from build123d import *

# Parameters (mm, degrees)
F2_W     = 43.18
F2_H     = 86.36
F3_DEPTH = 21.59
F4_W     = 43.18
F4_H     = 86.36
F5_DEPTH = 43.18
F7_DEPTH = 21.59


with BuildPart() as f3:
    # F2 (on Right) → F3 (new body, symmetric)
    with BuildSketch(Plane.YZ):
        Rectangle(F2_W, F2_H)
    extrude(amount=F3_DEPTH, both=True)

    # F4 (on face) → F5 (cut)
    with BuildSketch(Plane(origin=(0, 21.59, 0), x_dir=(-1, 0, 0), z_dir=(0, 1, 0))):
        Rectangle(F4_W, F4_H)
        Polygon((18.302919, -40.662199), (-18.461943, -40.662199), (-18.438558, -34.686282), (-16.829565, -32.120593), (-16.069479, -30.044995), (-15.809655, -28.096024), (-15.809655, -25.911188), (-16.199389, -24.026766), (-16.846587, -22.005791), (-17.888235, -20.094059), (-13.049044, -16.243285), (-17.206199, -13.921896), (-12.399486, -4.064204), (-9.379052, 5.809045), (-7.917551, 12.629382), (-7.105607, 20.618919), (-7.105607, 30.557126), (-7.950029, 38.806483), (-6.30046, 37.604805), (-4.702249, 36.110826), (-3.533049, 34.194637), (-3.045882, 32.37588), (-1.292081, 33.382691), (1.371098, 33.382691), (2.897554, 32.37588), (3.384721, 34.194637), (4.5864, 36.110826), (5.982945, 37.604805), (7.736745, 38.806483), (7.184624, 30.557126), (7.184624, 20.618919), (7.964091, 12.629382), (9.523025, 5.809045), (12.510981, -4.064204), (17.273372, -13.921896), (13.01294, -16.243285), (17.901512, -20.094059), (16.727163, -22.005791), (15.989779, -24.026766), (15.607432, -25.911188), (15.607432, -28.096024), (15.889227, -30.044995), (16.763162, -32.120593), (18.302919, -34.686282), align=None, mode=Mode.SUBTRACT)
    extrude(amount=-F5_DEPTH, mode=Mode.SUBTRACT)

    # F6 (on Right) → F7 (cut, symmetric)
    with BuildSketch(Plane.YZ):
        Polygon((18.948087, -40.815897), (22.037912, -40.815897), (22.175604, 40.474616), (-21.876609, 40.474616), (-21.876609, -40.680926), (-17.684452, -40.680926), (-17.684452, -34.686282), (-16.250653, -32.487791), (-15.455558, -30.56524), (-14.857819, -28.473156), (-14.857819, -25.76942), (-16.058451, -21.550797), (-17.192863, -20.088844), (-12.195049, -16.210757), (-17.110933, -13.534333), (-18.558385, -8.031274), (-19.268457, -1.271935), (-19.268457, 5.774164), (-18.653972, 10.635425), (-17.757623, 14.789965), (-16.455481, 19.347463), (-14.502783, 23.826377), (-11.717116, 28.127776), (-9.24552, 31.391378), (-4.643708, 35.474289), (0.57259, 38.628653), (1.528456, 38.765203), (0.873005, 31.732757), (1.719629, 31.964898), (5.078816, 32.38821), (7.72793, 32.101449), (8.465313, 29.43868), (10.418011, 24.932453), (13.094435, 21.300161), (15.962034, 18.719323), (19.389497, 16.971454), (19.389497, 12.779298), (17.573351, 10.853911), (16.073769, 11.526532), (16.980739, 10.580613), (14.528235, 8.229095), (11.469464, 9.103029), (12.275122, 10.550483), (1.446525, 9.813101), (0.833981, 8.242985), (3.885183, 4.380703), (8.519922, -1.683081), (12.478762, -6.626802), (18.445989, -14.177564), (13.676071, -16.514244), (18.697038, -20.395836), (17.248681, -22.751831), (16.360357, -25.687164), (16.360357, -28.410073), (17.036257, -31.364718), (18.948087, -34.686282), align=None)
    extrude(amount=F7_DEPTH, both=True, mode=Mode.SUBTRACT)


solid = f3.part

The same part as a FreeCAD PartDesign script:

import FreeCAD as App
import Part
import Sketcher
Q = App.Units.Quantity


def add_polygon(sketch, points):
    """Adds a closed chain of lines whose ends are joined by coincident constraints."""
    first, n = sketch.GeometryCount, len(points)
    for a, b in zip(points, points[1:] + points[:1]):
        sketch.addGeometry(Part.LineSegment(App.Vector(*a, 0), App.Vector(*b, 0)), False)
    for i in range(n):
        sketch.addConstraint(Sketcher.Constraint("Coincident", first + i, 2, first + (i + 1) % n, 1))

doc = App.newDocument("Part")
params = doc.addObject("Spreadsheet::Sheet", "Params")
for row, (alias, value) in enumerate([
    ("sketch1_width", "1.7 in"),
    ("sketch1_height", "3.4 in"),
    ("pad1_length", "1.7 in"),
    ("sketch2_width", "1.7 in"),
    ("sketch2_height", "3.4 in"),
    ("pocket1_length", "1.7 in"),
    ("pocket2_length", "1.7 in"),
], start=1):
    params.set(f"A{row}", alias)
    params.set(f"B{row}", "=" + value)
    params.setAlias(f"B{row}", alias)

body = doc.addObject("PartDesign::Body", "Body")

# Sketch on YZ plane
sketch1 = body.newObject("Sketcher::SketchObject", "Sketch")
sketch1.AttachmentSupport = (doc.getObject("YZ_Plane"), [""])
sketch1.MapMode = "FlatFace"
add_polygon(sketch1, [(-22, 43), (-22, -43), (22, -43), (22, 43)])  # lines 0-3
sketch1.addConstraint([
    Sketcher.Constraint("Vertical", 0),
    Sketcher.Constraint("Horizontal", 1),
    Sketcher.Constraint("Vertical", 2),
    Sketcher.Constraint("Horizontal", 3),
    Sketcher.Constraint("Symmetric", 0, 2, 2, 2, -1, 1),
    Sketcher.Constraint("DistanceX", 1, 1, 1, 2, Q("1.7 in")),
    Sketcher.Constraint("DistanceY", 0, 2, 0, 1, Q("3.4 in")),
])
sketch1.setExpression("Constraints[9]", "Params.sketch1_width")
sketch1.setExpression("Constraints[10]", "Params.sketch1_height")
pad1 = body.newObject("PartDesign::Pad", "Pad")
pad1.Profile = sketch1
pad1.setExpression("Length", "Params.pad1_length")
pad1.Midplane = True

# Sketch on XZ plane
sketch2 = body.newObject("Sketcher::SketchObject", "Sketch001")
sketch2.AttachmentSupport = (doc.getObject("XZ_Plane"), [""])
sketch2.MapMode = "FlatFace"
sketch2.AttachmentOffset = App.Placement(App.Vector(0, 0, -0.85 * 25.4), App.Rotation())
add_polygon(sketch2, [(21.6, 43.2), (21.6, -43.2), (-21.6, -43.2), (-21.6, 43.2)])  # lines 0-3
add_polygon(sketch2, [(-18.3, -34.7), (-18.3, -40.7), (18.5, -40.7), (18.4, -34.7), (16.8, -32.1), (16.1, -30), (15.8, -28.1), (15.8, -25.9), (16.2, -24), (16.8, -22), (17.9, -20.1), (13, -16.2), (17.2, -13.9), (12.4, -4.1), (9.4, 5.8), (7.9, 12.6), (7.1, 20.6), (7.1, 30.6), (8, 38.8), (6.3, 37.6), (4.7, 36.1), (3.5, 34.2), (3, 32.4), (1.3, 33.4), (-1.4, 33.4), (-2.9, 32.4), (-3.4, 34.2), (-4.6, 36.1), (-6, 37.6), (-7.7, 38.8), (-7.2, 30.6), (-7.2, 20.6), (-8, 12.6), (-9.5, 5.8), (-12.5, -4.1), (-17.3, -13.9), (-13, -16.2), (-17.9, -20.1), (-16.7, -22), (-16, -24), (-15.6, -25.9), (-15.6, -28.1), (-15.9, -30), (-16.8, -32.1)])  # lines 4-47
sketch2.addConstraint([
    Sketcher.Constraint("Vertical", 0),
    Sketcher.Constraint("Horizontal", 1),
    Sketcher.Constraint("Vertical", 2),
    Sketcher.Constraint("Horizontal", 3),
    Sketcher.Constraint("Vertical", 4),
    Sketcher.Constraint("Horizontal", 5),
    Sketcher.Constraint("Vertical", 10),
    Sketcher.Constraint("Vertical", 20),
    Sketcher.Constraint("Horizontal", 27),
    Sketcher.Constraint("Vertical", 34),
    Sketcher.Constraint("Vertical", 44),
    Sketcher.Constraint("Symmetric", 0, 2, 2, 2, -1, 1),
    Sketcher.Constraint("Parallel", 7, 30),
    Sketcher.Constraint("Perpendicular", 23, 31),
    Sketcher.Constraint("Perpendicular", 13, 39),
    Sketcher.Constraint("Horizontal", 25, 2, 28, 2),
    Sketcher.Constraint("Horizontal", 24, 2, 29, 2),
    Sketcher.Constraint("Horizontal", 23, 2, 30, 2),
    Sketcher.Constraint("Horizontal", 22, 2, 31, 2),
    Sketcher.Constraint("Horizontal", 21, 2, 32, 2),
    Sketcher.Constraint("Horizontal", 20, 2, 33, 2),
    Sketcher.Constraint("Horizontal", 19, 2, 34, 2),
    Sketcher.Constraint("Horizontal", 18, 2, 35, 2),
    Sketcher.Constraint("Horizontal", 17, 2, 36, 2),
    Sketcher.Constraint("Horizontal", 16, 2, 37, 2),
    Sketcher.Constraint("Horizontal", 15, 2, 38, 2),
    Sketcher.Constraint("Horizontal", 14, 2, 39, 2),
    Sketcher.Constraint("Horizontal", 13, 2, 40, 2),
    Sketcher.Constraint("Horizontal", 12, 2, 41, 2),
    Sketcher.Constraint("Horizontal", 11, 2, 42, 2),
    Sketcher.Constraint("Horizontal", 10, 2, 43, 2),
    Sketcher.Constraint("Horizontal", 9, 2, 44, 2),
    Sketcher.Constraint("Horizontal", 8, 2, 45, 2),
    Sketcher.Constraint("Horizontal", 7, 2, 46, 2),
    Sketcher.Constraint("Horizontal", 6, 2, 47, 2),
    Sketcher.Constraint("Equal", 25, 29),
    Sketcher.Constraint("DistanceX", 1, 2, 1, 1, Q("1.7 in")),
    Sketcher.Constraint("DistanceY", 0, 2, 0, 1, Q("3.4 in")),
    Sketcher.Constraint("DistanceY", 5, 2, 8, 2, Q("0.4180002 in")),
    Sketcher.Constraint("DistanceX", 9, 2, 6, 2, Q("0.1035001 in")),
    Sketcher.Constraint("DistanceX", 27, 2, 27, 1, Q("2.663179 mm")),
    Sketcher.Constraint("DistanceY", 4, 2, -1, 1, Q("40.662199 mm")),
    Sketcher.Constraint("DistanceX", -1, 1, 15, 2, Q("17.206199 mm")),
    Sketcher.Constraint("DistanceX", 30, 2, -1, 1, Q("4.5864 mm")),
    Sketcher.Constraint("DistanceX", 4, 2, 8, 2, Q("34.372398 mm")),
    Sketcher.Constraint("DistanceX", 16, 2, 12, 2, Q("4.447101 mm")),
    Sketcher.Constraint("DistanceX", 18, 2, 17, 2, Q("1.461501 mm")),
    Sketcher.Constraint("DistanceY", 18, 2, 21, 2, Q("26.177101 mm")),
    Sketcher.Constraint("DistanceY", 20, 2, 23, 2, Q("5.5537 mm")),
    Sketcher.Constraint("DistanceX", 24, 2, 23, 2, Q("1.1692 mm")),
    Sketcher.Constraint("DistanceX", 26, 2, 25, 2, Q("1.753801 mm")),
    Sketcher.Constraint("DistanceX", 32, 2, 31, 2, Q("1.7538 mm")),
    Sketcher.Constraint("DistanceX", 36, 2, 34, 2, Q("2.338401 mm")),
    Sketcher.Constraint("Distance", 7, Q("3.028468 mm")),
    Sketcher.Constraint("Distance", 16, Q("10.967159 mm")),
    Sketcher.Constraint("Distance", 18, Q("6.975169 mm")),
    Sketcher.Constraint("Distance", 19, Q("8.030688 mm")),
    Sketcher.Constraint("Distance", 22, Q("2.04086 mm")),
    Sketcher.Constraint("Distance", 23, Q("2.18775 mm")),
    Sketcher.Constraint("Distance", 24, Q("2.244729 mm")),
    Sketcher.Constraint("Distance", 28, Q("1.828589 mm")),
    Sketcher.Constraint("Distance", 31, Q("2.04507 mm")),
    Sketcher.Constraint("Distance", 35, Q("8.02747 mm")),
    Sketcher.Constraint("Distance", 37, Q("10.31547 mm")),
    Sketcher.Constraint("Distance", 40, Q("6.22307 mm")),
    Sketcher.Constraint("Distance", 43, Q("1.92282 mm")),
    Sketcher.Constraint("Distance", 46, Q("2.252081 mm")),
    Sketcher.Constraint("Distance", 47, Q("2.992259 mm")),
    Sketcher.Constraint("DistanceX", 5, 1, 5, 2, Q("36.764862 mm")),
    Sketcher.Constraint("DistanceY", 4, 2, 4, 1, Q("5.975917 mm")),
    Sketcher.Constraint("DistanceY", 10, 1, 10, 2, Q("2.184836 mm")),
    Sketcher.Constraint("DistanceY", 20, 1, 20, 2, Q("9.938207 mm")),
    Sketcher.Constraint("DistanceX", 4, 2, -1, 1, Q("18.302919 mm")),
    Sketcher.Constraint("DistanceX", -1, 1, 6, 2, Q("18.438558 mm")),
    Sketcher.Constraint("DistanceX", -1, 1, 11, 2, Q("16.199389 mm")),
    Sketcher.Constraint("DistanceY", 12, 2, -1, 1, Q("22.005791 mm")),
    Sketcher.Constraint("DistanceY", 13, 2, -1, 1, Q("20.094059 mm")),
    Sketcher.Constraint("DistanceX", -1, 1, 18, 2, Q("7.917551 mm")),
    Sketcher.Constraint("DistanceY", -1, 1, 19, 2, Q("20.618919 mm")),
    Sketcher.Constraint("DistanceX", -1, 1, 21, 2, Q("7.950029 mm")),
    Sketcher.Constraint("DistanceX", -1, 1, 22, 2, Q("6.30046 mm")),
    Sketcher.Constraint("DistanceY", -1, 1, 25, 2, Q("32.37588 mm")),
    Sketcher.Constraint("DistanceX", -1, 1, 26, 2, Q("1.292081 mm")),
    Sketcher.Constraint("DistanceY", -1, 1, 26, 2, Q("33.382691 mm")),
    Sketcher.Constraint("DistanceX", 35, 2, -1, 1, Q("7.964091 mm")),
    Sketcher.Constraint("DistanceX", 37, 2, -1, 1, Q("12.510981 mm")),
    Sketcher.Constraint("DistanceX", 38, 2, -1, 1, Q("17.273372 mm")),
    Sketcher.Constraint("DistanceX", 39, 2, -1, 1, Q("13.01294 mm")),
    Sketcher.Constraint("DistanceX", 42, 2, -1, 1, Q("15.989779 mm")),
    Sketcher.Constraint("DistanceX", 43, 2, -1, 1, Q("15.607432 mm")),
    Sketcher.Constraint("DistanceY", 8, 2, 9, 2, Q("1.948971 mm")),
    Sketcher.Constraint("DistanceX", 12, 2, 13, 2, Q("1.041648 mm")),
    Sketcher.Constraint("DistanceX", 10, 2, 13, 2, Q("2.07858 mm")),
    Sketcher.Constraint("DistanceX", 14, 2, 13, 2, Q("4.839191 mm")),
    Sketcher.Constraint("DistanceX", 40, 2, 41, 2, Q("1.174349 mm")),
])
sketch2.setExpression("Constraints[84]", "Params.sketch2_width")
sketch2.setExpression("Constraints[85]", "Params.sketch2_height")
pocket1 = body.newObject("PartDesign::Pocket", "Pocket")
pocket1.Profile = sketch2
pocket1.setExpression("Length", "Params.pocket1_length")
pocket1.Reversed = True

# Sketch on YZ plane
sketch3 = body.newObject("Sketcher::SketchObject", "Sketch002")
sketch3.AttachmentSupport = (doc.getObject("YZ_Plane"), [""])
sketch3.MapMode = "FlatFace"
add_polygon(sketch3, [(18.9, -40.8), (22, -40.8), (22.2, 40.5), (-21.9, 40.5), (-21.9, -40.7), (-17.7, -40.7), (-17.7, -34.7), (-16.3, -32.5), (-15.5, -30.6), (-14.9, -28.5), (-14.9, -25.8), (-16.1, -21.6), (-17.2, -20.1), (-12.2, -16.2), (-17.1, -13.5), (-18.6, -8), (-19.3, -1.3), (-19.3, 5.8), (-18.7, 10.6), (-17.8, 14.8), (-16.5, 19.3), (-14.5, 23.8), (-11.7, 28.1), (-9.2, 31.4), (-4.6, 35.5), (0.6, 38.6), (1.5, 38.8), (0.9, 31.7), (1.7, 32), (5.1, 32.4), (7.7, 32.1), (8.5, 29.4), (10.4, 24.9), (13.1, 21.3), (16, 18.7), (19.4, 17), (19.4, 12.8), (17.6, 10.9), (16.1, 11.5), (17, 10.6), (14.5, 8.2), (11.5, 9.1), (12.3, 10.6), (1.4, 9.8), (0.8, 8.2), (3.9, 4.4), (8.5, -1.7), (12.5, -6.6), (18.4, -14.2), (13.7, -16.5), (18.7, -20.4), (17.2, -22.8), (16.4, -25.7), (16.4, -28.4), (17, -31.4), (18.9, -34.7)])  # lines 0-55
sketch3.addConstraint([
    Sketcher.Constraint("Horizontal", 0),
    Sketcher.Constraint("Horizontal", 2),
    Sketcher.Constraint("Vertical", 3),
    Sketcher.Constraint("Horizontal", 4),
    Sketcher.Constraint("Vertical", 5),
    Sketcher.Constraint("Vertical", 9),
    Sketcher.Constraint("Vertical", 16),
    Sketcher.Constraint("Vertical", 35),
    Sketcher.Constraint("Vertical", 52),
    Sketcher.Constraint("Vertical", 55),
    Sketcher.Constraint("Perpendicular", 11, 12),
    Sketcher.Constraint("Parallel", 8, 19),
    Sketcher.Constraint("Perpendicular", 38, 39),
    Sketcher.Constraint("Perpendicular", 19, 40),
    Sketcher.Constraint("Horizontal", 5, 2, 54, 2),
    Sketcher.Constraint("Equal", 4, 35),
    Sketcher.Constraint("DistanceY", 3, 2, 3, 1, Q("3.1951001 in")),
    Sketcher.Constraint("DistanceY", 16, 1, 16, 2, Q("7.046099 mm")),
    Sketcher.Constraint("Distance", 8, Q("2.1758 mm")),
    Sketcher.Constraint("Distance", 44, Q("4.922099 mm")),
    Sketcher.Constraint("DistanceY", 52, 2, 52, 1, Q("2.722909 mm")),
    Sketcher.Constraint("DistanceY", -1, 1, 27, 2, Q("31.964898 mm")),
    Sketcher.Constraint("DistanceY", -1, 1, 35, 2, Q("12.779298 mm")),
    Sketcher.Constraint("DistanceY", -1, 1, 42, 2, Q("9.813101 mm")),
    Sketcher.Constraint("DistanceY", 46, 2, -1, 1, Q("6.626802 mm")),
    Sketcher.Constraint("DistanceY", 5, 2, 2, 2, Q("75.160898 mm")),
    Sketcher.Constraint("DistanceX", 5, 2, 6, 2, Q("1.433799 mm")),
    Sketcher.Constraint("DistanceX", 6, 2, 10, 2, Q("0.192202 mm")),
    Sketcher.Constraint("DistanceY", 8, 2, 12, 2, Q("12.262399 mm")),
    Sketcher.Constraint("DistanceY", 13, 2, 15, 2, Q("12.262398 mm")),
    Sketcher.Constraint("DistanceY", 14, 2, 17, 2, Q("18.666699 mm")),
    Sketcher.Constraint("DistanceY", 16, 2, 18, 2, Q("9.015801 mm")),
    Sketcher.Constraint("DistanceY", 18, 2, 19, 2, Q("4.557498 mm")),
    Sketcher.Constraint("DistanceY", 20, 2, 21, 2, Q("4.301399 mm")),
    Sketcher.Constraint("DistanceY", 21, 2, 22, 2, Q("3.263602 mm")),
    Sketcher.Constraint("DistanceX", 2, 2, 23, 2, Q("17.232901 mm")),
    Sketcher.Constraint("DistanceX", 27, 2, 29, 2, Q("6.008301 mm")),
    Sketcher.Constraint("DistanceX", 32, 2, 33, 2, Q("2.867599 mm")),
    Sketcher.Constraint("DistanceY", 34, 2, 31, 2, Q("7.960999 mm")),
    Sketcher.Constraint("DistanceY", 38, 2, 36, 2, Q("0.273298 mm")),
    Sketcher.Constraint("DistanceY", 43, 2, 41, 2, Q("2.307498 mm")),
    Sketcher.Constraint("DistanceX", 43, 2, 44, 2, Q("3.051202 mm")),
    Sketcher.Constraint("DistanceX", 45, 2, 41, 2, Q("3.7552 mm")),
    Sketcher.Constraint("DistanceY", 51, 2, 47, 2, Q("11.5096 mm")),
    Sketcher.Constraint("DistanceX", 52, 2, 53, 2, Q("0.6759 mm")),
    Sketcher.Constraint("Distance", 1, Q("81.29063 mm")),
    Sketcher.Constraint("Distance", 10, Q("4.386148 mm")),
    Sketcher.Constraint("Distance", 11, Q("1.850459 mm")),
    Sketcher.Constraint("Distance", 19, Q("4.739869 mm")),
    Sketcher.Constraint("Distance", 23, Q("6.151978 mm")),
    Sketcher.Constraint("Distance", 24, Q("6.095882 mm")),
    Sketcher.Constraint("Distance", 25, Q("0.96557 mm")),
    Sketcher.Constraint("Distance", 29, Q("2.664589 mm")),
    Sketcher.Constraint("Distance", 31, Q("4.911121 mm")),
    Sketcher.Constraint("Distance", 32, Q("4.51185 mm")),
    Sketcher.Constraint("Distance", 33, Q("3.857959 mm")),
    Sketcher.Constraint("Distance", 34, Q("3.847408 mm")),
    Sketcher.Constraint("Distance", 36, Q("2.646791 mm")),
    Sketcher.Constraint("Distance", 38, Q("1.31048 mm")),
    Sketcher.Constraint("Distance", 40, Q("3.18117 mm")),
    Sketcher.Constraint("Distance", 43, Q("1.685371 mm")),
    Sketcher.Constraint("Distance", 53, Q("3.030968 mm")),
    Sketcher.Constraint("DistanceX", 0, 1, 0, 2, Q("3.089825 mm")),
    Sketcher.Constraint("DistanceX", 2, 2, 2, 1, Q("44.052213 mm")),
    Sketcher.Constraint("DistanceX", 4, 1, 4, 2, Q("4.192157 mm")),
    Sketcher.Constraint("DistanceY", 9, 1, 9, 2, Q("2.703736 mm")),
    Sketcher.Constraint("DistanceX", -1, 1, 0, 2, Q("22.037912 mm")),
    Sketcher.Constraint("DistanceX", 2, 2, -1, 1, Q("21.876609 mm")),
    Sketcher.Constraint("DistanceY", 6, 2, -1, 1, Q("32.487791 mm")),
    Sketcher.Constraint("DistanceY", 7, 2, -1, 1, Q("30.56524 mm")),
    Sketcher.Constraint("DistanceX", 8, 2, -1, 1, Q("14.857819 mm")),
    Sketcher.Constraint("DistanceX", 12, 2, -1, 1, Q("12.195049 mm")),
    Sketcher.Constraint("DistanceX", 17, 2, -1, 1, Q("18.653972 mm")),
    Sketcher.Constraint("DistanceX", 19, 2, -1, 1, Q("16.455481 mm")),
    Sketcher.Constraint("DistanceX", 22, 2, -1, 1, Q("9.24552 mm")),
    Sketcher.Constraint("DistanceY", -1, 1, 23, 2, Q("35.474289 mm")),
    Sketcher.Constraint("DistanceX", -1, 1, 24, 2, Q("0.57259 mm")),
    Sketcher.Constraint("DistanceX", -1, 1, 27, 2, Q("1.719629 mm")),
    Sketcher.Constraint("DistanceY", -1, 1, 28, 2, Q("32.38821 mm")),
    Sketcher.Constraint("DistanceY", -1, 1, 29, 2, Q("32.101449 mm")),
    Sketcher.Constraint("DistanceY", -1, 1, 30, 2, Q("29.43868 mm")),
    Sketcher.Constraint("DistanceX", -1, 1, 31, 2, Q("10.418011 mm")),
    Sketcher.Constraint("DistanceY", -1, 1, 32, 2, Q("21.300161 mm")),
    Sketcher.Constraint("DistanceX", -1, 1, 36, 2, Q("17.573351 mm")),
    Sketcher.Constraint("DistanceX", -1, 1, 37, 2, Q("16.073769 mm")),
    Sketcher.Constraint("DistanceX", -1, 1, 38, 2, Q("16.980739 mm")),
    Sketcher.Constraint("DistanceY", -1, 1, 40, 2, Q("9.103029 mm")),
    Sketcher.Constraint("DistanceX", -1, 1, 43, 2, Q("0.833981 mm")),
    Sketcher.Constraint("DistanceX", -1, 1, 45, 2, Q("8.519922 mm")),
    Sketcher.Constraint("DistanceY", 45, 2, -1, 1, Q("1.683081 mm")),
    Sketcher.Constraint("DistanceX", -1, 1, 47, 2, Q("18.445989 mm")),
    Sketcher.Constraint("DistanceX", -1, 1, 48, 2, Q("13.676071 mm")),
    Sketcher.Constraint("DistanceX", -1, 1, 50, 2, Q("17.248681 mm")),
    Sketcher.Constraint("DistanceY", 50, 2, -1, 1, Q("22.751831 mm")),
    Sketcher.Constraint("DistanceY", 53, 2, -1, 1, Q("31.364718 mm")),
    Sketcher.Constraint("DistanceY", 5, 2, 6, 2, Q("2.198491 mm")),
    Sketcher.Constraint("DistanceX", 11, 2, 13, 2, Q("0.08193 mm")),
    Sketcher.Constraint("DistanceY", 11, 2, 13, 2, Q("6.554511 mm")),
    Sketcher.Constraint("DistanceY", 13, 2, 14, 2, Q("5.503059 mm")),
    Sketcher.Constraint("DistanceX", 15, 2, 12, 2, Q("7.073408 mm")),
    Sketcher.Constraint("DistanceX", 18, 2, 20, 2, Q("3.25484 mm")),
    Sketcher.Constraint("DistanceX", 21, 2, 23, 2, Q("7.073408 mm")),
    Sketcher.Constraint("DistanceY", 24, 2, 25, 2, Q("0.13655 mm")),
    Sketcher.Constraint("DistanceY", 26, 2, 23, 2, Q("3.741532 mm")),
    Sketcher.Constraint("DistanceX", 26, 2, 25, 2, Q("0.655451 mm")),
    Sketcher.Constraint("DistanceY", 39, 2, 41, 2, Q("2.321388 mm")),
    Sketcher.Constraint("DistanceX", 45, 2, 46, 2, Q("3.95884 mm")),
    Sketcher.Constraint("DistanceY", 48, 2, 47, 2, Q("2.33668 mm")),
    Sketcher.Constraint("DistanceX", 47, 2, 49, 2, Q("0.251049 mm")),
    Sketcher.Constraint("DistanceY", 49, 2, 47, 2, Q("6.218272 mm")),
    Sketcher.Constraint("DistanceX", 51, 2, 49, 2, Q("2.336681 mm")),
    Sketcher.Constraint("Distance", 14, Q("5.690235 mm")),
])
pocket2 = body.newObject("PartDesign::Pocket", "Pocket001")
pocket2.Profile = sketch3
pocket2.setExpression("Length", "Params.pocket2_length")
pocket2.Midplane = True

doc.recompute()
